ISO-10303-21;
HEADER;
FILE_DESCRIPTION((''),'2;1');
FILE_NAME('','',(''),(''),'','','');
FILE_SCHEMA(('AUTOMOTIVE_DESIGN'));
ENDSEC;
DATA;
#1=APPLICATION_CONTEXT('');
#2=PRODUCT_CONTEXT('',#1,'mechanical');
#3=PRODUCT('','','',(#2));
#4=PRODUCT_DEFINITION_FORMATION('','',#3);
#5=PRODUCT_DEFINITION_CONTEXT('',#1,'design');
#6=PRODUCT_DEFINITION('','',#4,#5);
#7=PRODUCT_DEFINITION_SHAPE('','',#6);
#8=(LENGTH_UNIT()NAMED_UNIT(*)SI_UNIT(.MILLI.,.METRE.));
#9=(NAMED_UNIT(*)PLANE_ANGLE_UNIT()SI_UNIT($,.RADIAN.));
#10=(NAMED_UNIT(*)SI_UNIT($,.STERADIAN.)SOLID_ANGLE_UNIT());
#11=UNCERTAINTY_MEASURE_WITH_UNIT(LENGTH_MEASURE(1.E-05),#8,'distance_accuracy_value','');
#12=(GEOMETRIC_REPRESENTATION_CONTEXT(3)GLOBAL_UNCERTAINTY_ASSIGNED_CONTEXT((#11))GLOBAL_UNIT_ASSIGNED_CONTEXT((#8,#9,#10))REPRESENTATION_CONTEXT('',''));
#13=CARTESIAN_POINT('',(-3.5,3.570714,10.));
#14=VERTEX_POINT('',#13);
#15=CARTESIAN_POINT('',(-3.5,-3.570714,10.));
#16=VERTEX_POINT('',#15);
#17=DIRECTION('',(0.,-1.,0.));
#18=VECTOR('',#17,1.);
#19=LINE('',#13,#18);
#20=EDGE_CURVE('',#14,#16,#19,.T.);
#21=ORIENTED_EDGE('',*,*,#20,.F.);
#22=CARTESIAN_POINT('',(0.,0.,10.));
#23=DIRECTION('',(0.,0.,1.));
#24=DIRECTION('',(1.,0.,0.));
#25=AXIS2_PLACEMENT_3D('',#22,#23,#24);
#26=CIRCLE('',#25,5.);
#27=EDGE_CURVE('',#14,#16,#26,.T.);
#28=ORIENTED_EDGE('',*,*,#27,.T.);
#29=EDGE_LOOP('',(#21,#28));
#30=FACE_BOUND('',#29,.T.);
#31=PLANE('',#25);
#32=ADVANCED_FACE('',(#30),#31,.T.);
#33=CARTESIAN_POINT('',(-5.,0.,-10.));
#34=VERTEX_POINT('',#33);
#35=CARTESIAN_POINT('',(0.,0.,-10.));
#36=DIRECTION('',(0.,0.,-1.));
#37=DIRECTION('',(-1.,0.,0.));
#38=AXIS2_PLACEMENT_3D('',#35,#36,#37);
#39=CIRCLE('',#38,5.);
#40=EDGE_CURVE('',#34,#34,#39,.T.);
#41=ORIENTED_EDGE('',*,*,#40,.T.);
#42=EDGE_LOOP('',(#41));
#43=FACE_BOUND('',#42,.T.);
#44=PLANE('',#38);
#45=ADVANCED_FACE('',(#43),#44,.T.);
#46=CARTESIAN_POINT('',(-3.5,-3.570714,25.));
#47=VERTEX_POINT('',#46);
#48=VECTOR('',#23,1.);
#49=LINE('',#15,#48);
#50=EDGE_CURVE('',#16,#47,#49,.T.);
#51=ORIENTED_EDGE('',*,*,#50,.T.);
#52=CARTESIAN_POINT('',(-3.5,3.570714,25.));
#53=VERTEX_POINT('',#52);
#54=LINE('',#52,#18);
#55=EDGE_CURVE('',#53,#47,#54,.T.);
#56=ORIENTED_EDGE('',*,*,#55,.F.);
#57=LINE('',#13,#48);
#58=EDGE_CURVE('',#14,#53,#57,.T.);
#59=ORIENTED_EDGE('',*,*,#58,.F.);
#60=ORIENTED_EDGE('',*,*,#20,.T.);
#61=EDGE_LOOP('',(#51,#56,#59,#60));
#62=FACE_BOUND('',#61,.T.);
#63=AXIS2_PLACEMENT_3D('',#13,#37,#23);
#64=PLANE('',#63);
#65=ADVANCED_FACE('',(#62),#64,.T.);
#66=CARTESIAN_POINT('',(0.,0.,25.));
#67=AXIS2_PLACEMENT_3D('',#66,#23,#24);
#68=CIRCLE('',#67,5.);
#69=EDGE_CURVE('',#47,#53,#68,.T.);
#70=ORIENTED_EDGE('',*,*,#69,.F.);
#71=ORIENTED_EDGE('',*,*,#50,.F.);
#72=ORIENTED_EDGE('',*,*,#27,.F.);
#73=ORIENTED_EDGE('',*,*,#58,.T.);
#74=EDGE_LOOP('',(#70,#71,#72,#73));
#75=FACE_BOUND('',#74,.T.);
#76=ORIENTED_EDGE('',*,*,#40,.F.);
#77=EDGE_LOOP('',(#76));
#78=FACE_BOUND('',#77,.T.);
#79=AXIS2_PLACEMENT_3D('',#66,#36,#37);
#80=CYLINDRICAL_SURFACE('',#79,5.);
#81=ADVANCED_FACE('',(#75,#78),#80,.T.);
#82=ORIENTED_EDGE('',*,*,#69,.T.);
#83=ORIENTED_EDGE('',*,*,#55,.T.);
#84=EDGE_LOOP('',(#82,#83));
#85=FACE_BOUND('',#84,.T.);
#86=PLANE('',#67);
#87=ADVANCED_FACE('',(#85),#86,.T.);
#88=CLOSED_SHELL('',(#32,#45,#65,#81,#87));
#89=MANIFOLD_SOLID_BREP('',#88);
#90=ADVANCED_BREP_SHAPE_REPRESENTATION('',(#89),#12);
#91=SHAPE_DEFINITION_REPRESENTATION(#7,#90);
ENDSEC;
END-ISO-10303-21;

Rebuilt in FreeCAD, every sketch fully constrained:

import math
import FreeCAD as App
import Part
import Sketcher
from FreeCAD import Vector

doc = App.newDocument("Part")
body = doc.addObject("PartDesign::Body", "Body")

sketch1 = body.newObject("Sketcher::SketchObject", "Sketch")
sketch1.AttachmentSupport = (doc.getObject("XY_Plane"), [""])
sketch1.MapMode = "FlatFace"
sketch1.addGeometry(Part.Circle(Vector(0, 0, 0), Vector(0, 0, 1), 5), False)
sketch1.addConstraint([
    Sketcher.Constraint("Coincident", 0, 3, -1, 1),
    Sketcher.Constraint("Diameter", 0, 10.0),
])
pad1 = body.newObject("PartDesign::Pad", "Pad")
pad1.Profile = sketch1
pad1.Length = 25

sketch2 = body.newObject("Sketcher::SketchObject", "Sketch001")
sketch2.AttachmentSupport = (doc.getObject("XY_Plane"), [""])
sketch2.MapMode = "FlatFace"
sketch2.AttachmentOffset = App.Placement(Vector(0, 0, 25), App.Rotation())
sketch2.addGeometry([
    Part.LineSegment(Vector(-9, 9, 0), Vector(-9, -9, 0)),
    Part.LineSegment(Vector(-9, -9, 0), Vector(9, -9, 0)),
    Part.LineSegment(Vector(9, -9, 0), Vector(9, 9, 0)),
    Part.LineSegment(Vector(9, 9, 0), Vector(-9, 9, 0)),
    Part.LineSegment(Vector(-4, -4, 0), Vector(-4, 4, 0)),
    Part.ArcOfCircle(Part.Circle(Vector(0, 0, 0), Vector(0, 0, 1), 5), math.radians(-134), math.radians(134)),
], False)
sketch2.addConstraint([
    Sketcher.Constraint("Coincident", 0, 2, 1, 1),
    Sketcher.Constraint("Coincident", 1, 2, 2, 1),
    Sketcher.Constraint("Coincident", 2, 2, 3, 1),
    Sketcher.Constraint("Coincident", 3, 2, 0, 1),
    Sketcher.Constraint("Coincident", 4, 1, 5, 1),
    Sketcher.Constraint("Coincident", 5, 2, 4, 2),
    Sketcher.Constraint("Vertical", 0),
    Sketcher.Constraint("Horizontal", 1),
    Sketcher.Constraint("Vertical", 2),
    Sketcher.Constraint("Horizontal", 3),
    Sketcher.Constraint("Vertical", 4),
    Sketcher.Constraint("Coincident", 5, 3, -1, 1),
    Sketcher.Constraint("Symmetric", 0, 2, 2, 2, -1, 1),
    Sketcher.Constraint("Equal", 3, 0),
    Sketcher.Constraint("Radius", 5, 5.0),
    Sketcher.Constraint("DistanceX", 4, 1, -1, 1, 3.5),
    Sketcher.Constraint("DistanceX", 1, 1, 1, 2, 17.744),
])
pocket1 = body.newObject("PartDesign::Pocket", "Pocket")
pocket1.Profile = sketch2
pocket1.Length = 15

sketch3 = body.newObject("Sketcher::SketchObject", "Sketch002")
sketch3.AttachmentSupport = (doc.getObject("XY_Plane"), [""])
sketch3.MapMode = "FlatFace"
sketch3.AttachmentOffset = App.Placement(Vector(0, 0, -10), App.Rotation())
sketch3.addGeometry(Part.Circle(Vector(0, 0, 0), Vector(0, 0, 1), 5), False)
sketch3.addConstraint([
    Sketcher.Constraint("Coincident", 0, 3, -1, 1),
    Sketcher.Constraint("Diameter", 0, 10.0),
])
pad2 = body.newObject("PartDesign::Pad", "Pad001")
pad2.Profile = sketch3
pad2.Length = 10

doc.recompute()
